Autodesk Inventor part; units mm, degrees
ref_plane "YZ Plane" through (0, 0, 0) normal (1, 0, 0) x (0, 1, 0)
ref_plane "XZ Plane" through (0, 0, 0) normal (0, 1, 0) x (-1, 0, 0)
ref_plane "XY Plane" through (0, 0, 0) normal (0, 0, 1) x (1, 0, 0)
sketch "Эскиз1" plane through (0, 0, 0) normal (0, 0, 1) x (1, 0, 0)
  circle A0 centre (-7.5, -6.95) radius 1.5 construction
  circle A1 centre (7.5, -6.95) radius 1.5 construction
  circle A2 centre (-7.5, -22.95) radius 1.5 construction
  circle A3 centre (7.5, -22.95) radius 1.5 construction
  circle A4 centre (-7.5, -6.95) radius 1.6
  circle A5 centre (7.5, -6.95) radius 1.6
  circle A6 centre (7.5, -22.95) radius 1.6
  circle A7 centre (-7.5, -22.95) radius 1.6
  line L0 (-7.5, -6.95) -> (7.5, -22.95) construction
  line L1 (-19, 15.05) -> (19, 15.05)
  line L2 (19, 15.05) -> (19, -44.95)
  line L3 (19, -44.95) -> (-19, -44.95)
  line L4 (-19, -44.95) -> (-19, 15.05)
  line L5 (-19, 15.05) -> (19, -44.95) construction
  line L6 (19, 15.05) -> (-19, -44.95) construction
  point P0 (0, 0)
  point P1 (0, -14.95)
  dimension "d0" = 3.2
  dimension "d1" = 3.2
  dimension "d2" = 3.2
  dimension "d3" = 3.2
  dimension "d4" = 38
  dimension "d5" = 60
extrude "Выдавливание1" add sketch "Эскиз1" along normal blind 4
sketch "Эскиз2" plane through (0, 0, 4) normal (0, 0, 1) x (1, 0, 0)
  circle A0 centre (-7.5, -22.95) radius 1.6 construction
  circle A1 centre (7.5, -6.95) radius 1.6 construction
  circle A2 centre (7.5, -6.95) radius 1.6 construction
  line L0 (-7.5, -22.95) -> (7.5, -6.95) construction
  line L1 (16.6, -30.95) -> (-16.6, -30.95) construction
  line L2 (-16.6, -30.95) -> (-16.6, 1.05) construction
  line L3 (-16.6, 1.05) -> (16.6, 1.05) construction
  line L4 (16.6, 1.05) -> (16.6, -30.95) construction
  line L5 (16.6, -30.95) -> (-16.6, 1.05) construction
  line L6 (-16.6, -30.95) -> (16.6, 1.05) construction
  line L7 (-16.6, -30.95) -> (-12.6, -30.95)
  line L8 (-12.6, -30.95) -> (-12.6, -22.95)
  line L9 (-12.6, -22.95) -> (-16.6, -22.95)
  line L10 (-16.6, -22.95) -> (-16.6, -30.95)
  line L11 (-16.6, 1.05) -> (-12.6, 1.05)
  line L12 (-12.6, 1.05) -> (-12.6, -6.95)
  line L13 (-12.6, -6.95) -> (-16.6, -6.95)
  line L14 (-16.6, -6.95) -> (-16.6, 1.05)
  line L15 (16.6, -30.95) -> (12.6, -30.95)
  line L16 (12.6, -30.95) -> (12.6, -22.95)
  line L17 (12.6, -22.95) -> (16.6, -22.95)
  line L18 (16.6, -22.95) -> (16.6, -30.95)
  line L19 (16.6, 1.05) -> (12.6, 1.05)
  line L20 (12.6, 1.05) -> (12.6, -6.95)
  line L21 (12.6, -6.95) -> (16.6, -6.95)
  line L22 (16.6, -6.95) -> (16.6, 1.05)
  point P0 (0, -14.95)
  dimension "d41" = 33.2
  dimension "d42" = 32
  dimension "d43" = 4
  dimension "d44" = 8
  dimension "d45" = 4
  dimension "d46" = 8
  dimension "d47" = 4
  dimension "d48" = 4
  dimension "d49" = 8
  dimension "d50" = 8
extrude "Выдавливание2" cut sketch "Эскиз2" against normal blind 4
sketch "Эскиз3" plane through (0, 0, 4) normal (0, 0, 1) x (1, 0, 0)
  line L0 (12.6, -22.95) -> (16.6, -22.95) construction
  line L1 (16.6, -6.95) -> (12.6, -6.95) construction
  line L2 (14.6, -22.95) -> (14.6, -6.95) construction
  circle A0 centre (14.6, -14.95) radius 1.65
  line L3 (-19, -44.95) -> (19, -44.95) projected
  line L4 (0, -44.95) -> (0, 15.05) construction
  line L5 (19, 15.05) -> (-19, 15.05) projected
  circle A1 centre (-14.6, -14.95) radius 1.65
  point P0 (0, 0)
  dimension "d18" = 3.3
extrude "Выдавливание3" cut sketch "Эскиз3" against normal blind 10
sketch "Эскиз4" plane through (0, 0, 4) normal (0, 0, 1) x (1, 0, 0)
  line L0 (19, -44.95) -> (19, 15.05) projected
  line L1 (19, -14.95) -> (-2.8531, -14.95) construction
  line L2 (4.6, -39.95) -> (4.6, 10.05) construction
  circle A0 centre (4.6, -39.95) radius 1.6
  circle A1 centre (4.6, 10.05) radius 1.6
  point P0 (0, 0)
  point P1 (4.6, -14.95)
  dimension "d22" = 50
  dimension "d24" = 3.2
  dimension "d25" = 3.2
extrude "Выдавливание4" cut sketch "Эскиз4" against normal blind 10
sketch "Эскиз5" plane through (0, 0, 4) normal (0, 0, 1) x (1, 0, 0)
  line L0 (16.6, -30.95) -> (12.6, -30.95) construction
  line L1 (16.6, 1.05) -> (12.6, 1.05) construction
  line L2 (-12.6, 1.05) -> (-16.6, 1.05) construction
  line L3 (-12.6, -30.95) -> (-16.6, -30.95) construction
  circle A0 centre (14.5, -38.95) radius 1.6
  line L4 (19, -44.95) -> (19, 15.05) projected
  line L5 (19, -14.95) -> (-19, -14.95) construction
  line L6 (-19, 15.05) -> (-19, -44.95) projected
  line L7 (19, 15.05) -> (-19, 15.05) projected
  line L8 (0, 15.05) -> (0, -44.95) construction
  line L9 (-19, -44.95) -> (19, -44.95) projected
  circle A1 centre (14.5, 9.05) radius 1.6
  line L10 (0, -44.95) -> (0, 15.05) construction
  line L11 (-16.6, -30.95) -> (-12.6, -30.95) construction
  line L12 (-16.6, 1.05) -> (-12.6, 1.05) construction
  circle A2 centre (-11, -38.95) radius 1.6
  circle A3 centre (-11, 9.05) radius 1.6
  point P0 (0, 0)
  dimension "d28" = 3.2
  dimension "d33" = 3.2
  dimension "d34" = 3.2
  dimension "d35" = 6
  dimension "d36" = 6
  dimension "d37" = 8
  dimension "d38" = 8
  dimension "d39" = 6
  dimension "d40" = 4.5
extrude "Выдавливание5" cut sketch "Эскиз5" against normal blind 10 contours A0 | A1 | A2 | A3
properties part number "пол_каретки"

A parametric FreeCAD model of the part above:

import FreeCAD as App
import Part
import Sketcher
from FreeCAD import Vector
Q = App.Units.Quantity


def add_polygon(sketch, points):
    """Adds a closed chain of lines whose ends are joined by coincident constraints."""
    first, n = sketch.GeometryCount, len(points)
    for a, b in zip(points, points[1:] + points[:1]):
        sketch.addGeometry(Part.LineSegment(App.Vector(*a, 0), App.Vector(*b, 0)), False)
    for i in range(n):
        sketch.addConstraint(Sketcher.Constraint("Coincident", first + i, 2, first + (i + 1) % n, 1))

doc = App.newDocument("Part")
body = doc.addObject("PartDesign::Body", "Body")

# Sketch on XY plane
sketch1 = body.newObject("Sketcher::SketchObject", "Sketch")
sketch1.AttachmentSupport = (doc.getObject("XY_Plane"), [""])
sketch1.MapMode = "FlatFace"
add_polygon(sketch1, [(19, 15.1), (-19, 15.1), (-19, -45), (19, -45)])  # lines 0-3
sketch1.addGeometry(Part.Circle(Vector(-7.5, -22.9, 0), Vector(0, 0, 1), 1.6), False)  # 4
sketch1.addGeometry(Part.Circle(Vector(7.5, -22.9, 0), Vector(0, 0, 1), 1.6), False)  # 5
sketch1.addGeometry(Part.Circle(Vector(-7.5, -7, 0), Vector(0, 0, 1), 1.6), False)  # 6
sketch1.addGeometry(Part.Circle(Vector(7.5, -7, 0), Vector(0, 0, 1), 1.6), False)  # 7
sketch1.addConstraint(Sketcher.Constraint("Horizontal", 0))
sketch1.addConstraint(Sketcher.Constraint("Vertical", 1))
sketch1.addConstraint(Sketcher.Constraint("Horizontal", 2))
sketch1.addConstraint(Sketcher.Constraint("Vertical", 3))
sketch1.addConstraint(Sketcher.Constraint("Equal", 4, 5))
sketch1.addConstraint(Sketcher.Constraint("Equal", 5, 6))
sketch1.addConstraint(Sketcher.Constraint("Equal", 6, 7))
sketch1.addConstraint(Sketcher.Constraint("Symmetric", 4, 3, 5, 3, -2))
sketch1.addConstraint(Sketcher.Constraint("Symmetric", 6, 3, 7, 3, -2))
sketch1.addConstraint(Sketcher.Constraint("Vertical", 4, 3, 6, 3))
sketch1.addConstraint(Sketcher.Constraint("Diameter", 4, Q("3.2 mm")))
sketch1.addConstraint(Sketcher.Constraint("DistanceX", 0, 2, 0, 1, Q("38 mm")))
sketch1.addConstraint(Sketcher.Constraint("DistanceY", 1, 2, 1, 1, Q("60 mm")))
sketch1.addConstraint(Sketcher.Constraint("DistanceY", 4, 3, 0, 2, Q("38 mm")))
sketch1.addConstraint(Sketcher.Constraint("DistanceY", 1, 2, 6, 3, Q("38 mm")))
sketch1.addConstraint(Sketcher.Constraint("DistanceX", 0, 2, -1, 1, Q("19 mm")))
sketch1.addConstraint(Sketcher.Constraint("DistanceX", 4, 3, 5, 3, Q("15 mm")))
sketch1.addConstraint(Sketcher.Constraint("DistanceY", 4, 3, -1, 1, Q("22.95 mm")))
pad1 = body.newObject("PartDesign::Pad", "Pad")
pad1.Profile = sketch1
pad1.Length = 4

# Sketch on XY plane
sketch2 = body.newObject("Sketcher::SketchObject", "Sketch001")
sketch2.AttachmentSupport = (doc.getObject("XY_Plane"), [""])
sketch2.MapMode = "FlatFace"
sketch2.AttachmentOffset = App.Placement(Vector(0, 0, 4), App.Rotation())
add_polygon(sketch2, [(-16.6, -22.9), (-16.6, -30.9), (-12.6, -30.9), (-12.6, -22.9)])  # lines 0-3
add_polygon(sketch2, [(-12.6, 1.1), (-16.6, 1.1), (-16.6, -7), (-12.6, -7)])  # lines 4-7
add_polygon(sketch2, [(12.6, -30.9), (16.6, -30.9), (16.6, -22.9), (12.6, -22.9)])  # lines 8-11
add_polygon(sketch2, [(16.6, -7), (16.6, 1.1), (12.6, 1.1), (12.6, -7)])  # lines 12-15
sketch2.addConstraint(Sketcher.Constraint("Vertical", 0))
sketch2.addConstraint(Sketcher.Constraint("Horizontal", 1))
sketch2.addConstraint(Sketcher.Constraint("Vertical", 2))
sketch2.addConstraint(Sketcher.Constraint("Horizontal", 3))
sketch2.addConstraint(Sketcher.Constraint("Horizontal", 4))
sketch2.addConstraint(Sketcher.Constraint("Vertical", 5))
sketch2.addConstraint(Sketcher.Constraint("Horizontal", 6))
sketch2.addConstraint(Sketcher.Constraint("Vertical", 7))
sketch2.addConstraint(Sketcher.Constraint("Horizontal", 8))
sketch2.addConstraint(Sketcher.Constraint("Vertical", 9))
sketch2.addConstraint(Sketcher.Constraint("Horizontal", 10))
sketch2.addConstraint(Sketcher.Constraint("Vertical", 11))
sketch2.addConstraint(Sketcher.Constraint("Vertical", 12))
sketch2.addConstraint(Sketcher.Constraint("Horizontal", 13))
sketch2.addConstraint(Sketcher.Constraint("Vertical", 14))
sketch2.addConstraint(Sketcher.Constraint("Horizontal", 15))
sketch2.addConstraint(Sketcher.Constraint("Symmetric", 0, 2, 8, 2, -2))
sketch2.addConstraint(Sketcher.Constraint("Symmetric", 2, 2, 10, 2, -2))
sketch2.addConstraint(Sketcher.Constraint("Symmetric", 4, 2, 12, 2, -2))
sketch2.addConstraint(Sketcher.Constraint("Symmetric", 6, 2, 14, 2, -2))
sketch2.addConstraint(Sketcher.Constraint("Vertical", 3, 2, 4, 2))
sketch2.addConstraint(Sketcher.Constraint("Vertical", 2, 2, 6, 2))
sketch2.addConstraint(Sketcher.Constraint("Equal", 2, 5))
sketch2.addConstraint(Sketcher.Constraint("DistanceX", 1, 1, 1, 2, Q("4 mm")))
sketch2.addConstraint(Sketcher.Constraint("DistanceY", 0, 2, 0, 1, Q("8 mm")))
sketch2.addConstraint(Sketcher.Constraint("DistanceY", 0, 2, 4, 2, Q("32 mm")))
sketch2.addConstraint(Sketcher.Constraint("DistanceX", 0, 2, 8, 2, Q("33.2 mm")))
sketch2.addConstraint(Sketcher.Constraint("DistanceY", 0, 2, -1, 1, Q("30.95 mm")))
pocket1 = body.newObject("PartDesign::Pocket", "Pocket")
pocket1.Profile = sketch2
pocket1.Length = 4

# Sketch on XY plane
sketch3 = body.newObject("Sketcher::SketchObject", "Sketch002")
sketch3.AttachmentSupport = (doc.getObject("XY_Plane"), [""])
sketch3.MapMode = "FlatFace"
sketch3.AttachmentOffset = App.Placement(Vector(0, 0, 4), App.Rotation())
sketch3.addGeometry(Part.Circle(Vector(14.6, -14.9, 0), Vector(0, 0, 1), 1.6), False)
sketch3.addGeometry(Part.Circle(Vector(-14.6, -14.9, 0), Vector(0, 0, 1), 1.6), False)
sketch3.addConstraint(Sketcher.Constraint("Equal", 0, 1))
sketch3.addConstraint(Sketcher.Constraint("Symmetric", 0, 3, 1, 3, -2))
sketch3.addConstraint(Sketcher.Constraint("Diameter", 0, Q("3.3 mm")))
sketch3.addConstraint(Sketcher.Constraint("DistanceX", -1, 1, 0, 3, Q("14.6 mm")))
sketch3.addConstraint(Sketcher.Constraint("DistanceY", 0, 3, -1, 1, Q("14.95 mm")))
pocket2 = body.newObject("PartDesign::Pocket", "Pocket001")
pocket2.Profile = sketch3
pocket2.Length = 10

# Sketch on XY plane
sketch4 = body.newObject("Sketcher::SketchObject", "Sketch003")
sketch4.AttachmentSupport = (doc.getObject("XY_Plane"), [""])
sketch4.MapMode = "FlatFace"
sketch4.AttachmentOffset = App.Placement(Vector(0, 0, 4), App.Rotation())
sketch4.addGeometry(Part.Circle(Vector(4.6, -40, 0), Vector(0, 0, 1), 1.6), False)
sketch4.addGeometry(Part.Circle(Vector(4.6, 10.1, 0), Vector(0, 0, 1), 1.6), False)
sketch4.addConstraint(Sketcher.Constraint("Equal", 0, 1))
sketch4.addConstraint(Sketcher.Constraint("Vertical", 0, 3, 1, 3))
sketch4.addConstraint(Sketcher.Constraint("Diameter", 0, Q("3.2 mm")))
sketch4.addConstraint(Sketcher.Constraint("DistanceY", 0, 3, 1, 3, Q("50 mm")))
sketch4.addConstraint(Sketcher.Constraint("DistanceX", -1, 1, 0, 3, Q("4.6 mm")))
sketch4.addConstraint(Sketcher.Constraint("DistanceY", 0, 3, -1, 1, Q("39.95 mm")))
pocket3 = body.newObject("PartDesign::Pocket", "Pocket002")
pocket3.Profile = sketch4
pocket3.Length = 10

# Sketch on XY plane
sketch5 = body.newObject("Sketcher::SketchObject", "Sketch004")
sketch5.AttachmentSupport = (doc.getObject("XY_Plane"), [""])
sketch5.MapMode = "FlatFace"
sketch5.AttachmentOffset = App.Placement(Vector(0, 0, 4), App.Rotation())
sketch5.addGeometry(Part.Circle(Vector(14.5, -39, 0), Vector(0, 0, 1), 1.6), False)
sketch5.addGeometry(Part.Circle(Vector(14.5, 9.1, 0), Vector(0, 0, 1), 1.6), False)
sketch5.addGeometry(Part.Circle(Vector(-11, -39, 0), Vector(0, 0, 1), 1.6), False)
sketch5.addGeometry(Part.Circle(Vector(-11, 9.1, 0), Vector(0, 0, 1), 1.6), False)
sketch5.addConstraint(Sketcher.Constraint("Equal", 0, 1))
sketch5.addConstraint(Sketcher.Constraint("Equal", 1, 2))
sketch5.addConstraint(Sketcher.Constraint("Equal", 2, 3))
sketch5.addConstraint(Sketcher.Constraint("Horizontal", 0, 3, 2, 3))
sketch5.addConstraint(Sketcher.Constraint("Horizontal", 1, 3, 3, 3))
sketch5.addConstraint(Sketcher.Constraint("Vertical", 0, 3, 1, 3))
sketch5.addConstraint(Sketcher.Constraint("Vertical", 2, 3, 3, 3))
sketch5.addConstraint(Sketcher.Constraint("Diameter", 0, Q("3.2 mm")))
sketch5.addConstraint(Sketcher.Constraint("DistanceX", 2, 3, -1, 1, Q("11 mm")))
sketch5.addConstraint(Sketcher.Constraint("DistanceY", 0, 3, 1, 3, Q("48 mm")))
sketch5.addConstraint(Sketcher.Constraint("DistanceX", -1, 1, 0, 3, Q("14.5 mm")))
sketch5.addConstraint(Sketcher.Constraint("DistanceY", 0, 3, -1, 1, Q("38.95 mm")))
pocket4 = body.newObject("PartDesign::Pocket", "Pocket003")
pocket4.Profile = sketch5
pocket4.Length = 10

doc.recompute()
